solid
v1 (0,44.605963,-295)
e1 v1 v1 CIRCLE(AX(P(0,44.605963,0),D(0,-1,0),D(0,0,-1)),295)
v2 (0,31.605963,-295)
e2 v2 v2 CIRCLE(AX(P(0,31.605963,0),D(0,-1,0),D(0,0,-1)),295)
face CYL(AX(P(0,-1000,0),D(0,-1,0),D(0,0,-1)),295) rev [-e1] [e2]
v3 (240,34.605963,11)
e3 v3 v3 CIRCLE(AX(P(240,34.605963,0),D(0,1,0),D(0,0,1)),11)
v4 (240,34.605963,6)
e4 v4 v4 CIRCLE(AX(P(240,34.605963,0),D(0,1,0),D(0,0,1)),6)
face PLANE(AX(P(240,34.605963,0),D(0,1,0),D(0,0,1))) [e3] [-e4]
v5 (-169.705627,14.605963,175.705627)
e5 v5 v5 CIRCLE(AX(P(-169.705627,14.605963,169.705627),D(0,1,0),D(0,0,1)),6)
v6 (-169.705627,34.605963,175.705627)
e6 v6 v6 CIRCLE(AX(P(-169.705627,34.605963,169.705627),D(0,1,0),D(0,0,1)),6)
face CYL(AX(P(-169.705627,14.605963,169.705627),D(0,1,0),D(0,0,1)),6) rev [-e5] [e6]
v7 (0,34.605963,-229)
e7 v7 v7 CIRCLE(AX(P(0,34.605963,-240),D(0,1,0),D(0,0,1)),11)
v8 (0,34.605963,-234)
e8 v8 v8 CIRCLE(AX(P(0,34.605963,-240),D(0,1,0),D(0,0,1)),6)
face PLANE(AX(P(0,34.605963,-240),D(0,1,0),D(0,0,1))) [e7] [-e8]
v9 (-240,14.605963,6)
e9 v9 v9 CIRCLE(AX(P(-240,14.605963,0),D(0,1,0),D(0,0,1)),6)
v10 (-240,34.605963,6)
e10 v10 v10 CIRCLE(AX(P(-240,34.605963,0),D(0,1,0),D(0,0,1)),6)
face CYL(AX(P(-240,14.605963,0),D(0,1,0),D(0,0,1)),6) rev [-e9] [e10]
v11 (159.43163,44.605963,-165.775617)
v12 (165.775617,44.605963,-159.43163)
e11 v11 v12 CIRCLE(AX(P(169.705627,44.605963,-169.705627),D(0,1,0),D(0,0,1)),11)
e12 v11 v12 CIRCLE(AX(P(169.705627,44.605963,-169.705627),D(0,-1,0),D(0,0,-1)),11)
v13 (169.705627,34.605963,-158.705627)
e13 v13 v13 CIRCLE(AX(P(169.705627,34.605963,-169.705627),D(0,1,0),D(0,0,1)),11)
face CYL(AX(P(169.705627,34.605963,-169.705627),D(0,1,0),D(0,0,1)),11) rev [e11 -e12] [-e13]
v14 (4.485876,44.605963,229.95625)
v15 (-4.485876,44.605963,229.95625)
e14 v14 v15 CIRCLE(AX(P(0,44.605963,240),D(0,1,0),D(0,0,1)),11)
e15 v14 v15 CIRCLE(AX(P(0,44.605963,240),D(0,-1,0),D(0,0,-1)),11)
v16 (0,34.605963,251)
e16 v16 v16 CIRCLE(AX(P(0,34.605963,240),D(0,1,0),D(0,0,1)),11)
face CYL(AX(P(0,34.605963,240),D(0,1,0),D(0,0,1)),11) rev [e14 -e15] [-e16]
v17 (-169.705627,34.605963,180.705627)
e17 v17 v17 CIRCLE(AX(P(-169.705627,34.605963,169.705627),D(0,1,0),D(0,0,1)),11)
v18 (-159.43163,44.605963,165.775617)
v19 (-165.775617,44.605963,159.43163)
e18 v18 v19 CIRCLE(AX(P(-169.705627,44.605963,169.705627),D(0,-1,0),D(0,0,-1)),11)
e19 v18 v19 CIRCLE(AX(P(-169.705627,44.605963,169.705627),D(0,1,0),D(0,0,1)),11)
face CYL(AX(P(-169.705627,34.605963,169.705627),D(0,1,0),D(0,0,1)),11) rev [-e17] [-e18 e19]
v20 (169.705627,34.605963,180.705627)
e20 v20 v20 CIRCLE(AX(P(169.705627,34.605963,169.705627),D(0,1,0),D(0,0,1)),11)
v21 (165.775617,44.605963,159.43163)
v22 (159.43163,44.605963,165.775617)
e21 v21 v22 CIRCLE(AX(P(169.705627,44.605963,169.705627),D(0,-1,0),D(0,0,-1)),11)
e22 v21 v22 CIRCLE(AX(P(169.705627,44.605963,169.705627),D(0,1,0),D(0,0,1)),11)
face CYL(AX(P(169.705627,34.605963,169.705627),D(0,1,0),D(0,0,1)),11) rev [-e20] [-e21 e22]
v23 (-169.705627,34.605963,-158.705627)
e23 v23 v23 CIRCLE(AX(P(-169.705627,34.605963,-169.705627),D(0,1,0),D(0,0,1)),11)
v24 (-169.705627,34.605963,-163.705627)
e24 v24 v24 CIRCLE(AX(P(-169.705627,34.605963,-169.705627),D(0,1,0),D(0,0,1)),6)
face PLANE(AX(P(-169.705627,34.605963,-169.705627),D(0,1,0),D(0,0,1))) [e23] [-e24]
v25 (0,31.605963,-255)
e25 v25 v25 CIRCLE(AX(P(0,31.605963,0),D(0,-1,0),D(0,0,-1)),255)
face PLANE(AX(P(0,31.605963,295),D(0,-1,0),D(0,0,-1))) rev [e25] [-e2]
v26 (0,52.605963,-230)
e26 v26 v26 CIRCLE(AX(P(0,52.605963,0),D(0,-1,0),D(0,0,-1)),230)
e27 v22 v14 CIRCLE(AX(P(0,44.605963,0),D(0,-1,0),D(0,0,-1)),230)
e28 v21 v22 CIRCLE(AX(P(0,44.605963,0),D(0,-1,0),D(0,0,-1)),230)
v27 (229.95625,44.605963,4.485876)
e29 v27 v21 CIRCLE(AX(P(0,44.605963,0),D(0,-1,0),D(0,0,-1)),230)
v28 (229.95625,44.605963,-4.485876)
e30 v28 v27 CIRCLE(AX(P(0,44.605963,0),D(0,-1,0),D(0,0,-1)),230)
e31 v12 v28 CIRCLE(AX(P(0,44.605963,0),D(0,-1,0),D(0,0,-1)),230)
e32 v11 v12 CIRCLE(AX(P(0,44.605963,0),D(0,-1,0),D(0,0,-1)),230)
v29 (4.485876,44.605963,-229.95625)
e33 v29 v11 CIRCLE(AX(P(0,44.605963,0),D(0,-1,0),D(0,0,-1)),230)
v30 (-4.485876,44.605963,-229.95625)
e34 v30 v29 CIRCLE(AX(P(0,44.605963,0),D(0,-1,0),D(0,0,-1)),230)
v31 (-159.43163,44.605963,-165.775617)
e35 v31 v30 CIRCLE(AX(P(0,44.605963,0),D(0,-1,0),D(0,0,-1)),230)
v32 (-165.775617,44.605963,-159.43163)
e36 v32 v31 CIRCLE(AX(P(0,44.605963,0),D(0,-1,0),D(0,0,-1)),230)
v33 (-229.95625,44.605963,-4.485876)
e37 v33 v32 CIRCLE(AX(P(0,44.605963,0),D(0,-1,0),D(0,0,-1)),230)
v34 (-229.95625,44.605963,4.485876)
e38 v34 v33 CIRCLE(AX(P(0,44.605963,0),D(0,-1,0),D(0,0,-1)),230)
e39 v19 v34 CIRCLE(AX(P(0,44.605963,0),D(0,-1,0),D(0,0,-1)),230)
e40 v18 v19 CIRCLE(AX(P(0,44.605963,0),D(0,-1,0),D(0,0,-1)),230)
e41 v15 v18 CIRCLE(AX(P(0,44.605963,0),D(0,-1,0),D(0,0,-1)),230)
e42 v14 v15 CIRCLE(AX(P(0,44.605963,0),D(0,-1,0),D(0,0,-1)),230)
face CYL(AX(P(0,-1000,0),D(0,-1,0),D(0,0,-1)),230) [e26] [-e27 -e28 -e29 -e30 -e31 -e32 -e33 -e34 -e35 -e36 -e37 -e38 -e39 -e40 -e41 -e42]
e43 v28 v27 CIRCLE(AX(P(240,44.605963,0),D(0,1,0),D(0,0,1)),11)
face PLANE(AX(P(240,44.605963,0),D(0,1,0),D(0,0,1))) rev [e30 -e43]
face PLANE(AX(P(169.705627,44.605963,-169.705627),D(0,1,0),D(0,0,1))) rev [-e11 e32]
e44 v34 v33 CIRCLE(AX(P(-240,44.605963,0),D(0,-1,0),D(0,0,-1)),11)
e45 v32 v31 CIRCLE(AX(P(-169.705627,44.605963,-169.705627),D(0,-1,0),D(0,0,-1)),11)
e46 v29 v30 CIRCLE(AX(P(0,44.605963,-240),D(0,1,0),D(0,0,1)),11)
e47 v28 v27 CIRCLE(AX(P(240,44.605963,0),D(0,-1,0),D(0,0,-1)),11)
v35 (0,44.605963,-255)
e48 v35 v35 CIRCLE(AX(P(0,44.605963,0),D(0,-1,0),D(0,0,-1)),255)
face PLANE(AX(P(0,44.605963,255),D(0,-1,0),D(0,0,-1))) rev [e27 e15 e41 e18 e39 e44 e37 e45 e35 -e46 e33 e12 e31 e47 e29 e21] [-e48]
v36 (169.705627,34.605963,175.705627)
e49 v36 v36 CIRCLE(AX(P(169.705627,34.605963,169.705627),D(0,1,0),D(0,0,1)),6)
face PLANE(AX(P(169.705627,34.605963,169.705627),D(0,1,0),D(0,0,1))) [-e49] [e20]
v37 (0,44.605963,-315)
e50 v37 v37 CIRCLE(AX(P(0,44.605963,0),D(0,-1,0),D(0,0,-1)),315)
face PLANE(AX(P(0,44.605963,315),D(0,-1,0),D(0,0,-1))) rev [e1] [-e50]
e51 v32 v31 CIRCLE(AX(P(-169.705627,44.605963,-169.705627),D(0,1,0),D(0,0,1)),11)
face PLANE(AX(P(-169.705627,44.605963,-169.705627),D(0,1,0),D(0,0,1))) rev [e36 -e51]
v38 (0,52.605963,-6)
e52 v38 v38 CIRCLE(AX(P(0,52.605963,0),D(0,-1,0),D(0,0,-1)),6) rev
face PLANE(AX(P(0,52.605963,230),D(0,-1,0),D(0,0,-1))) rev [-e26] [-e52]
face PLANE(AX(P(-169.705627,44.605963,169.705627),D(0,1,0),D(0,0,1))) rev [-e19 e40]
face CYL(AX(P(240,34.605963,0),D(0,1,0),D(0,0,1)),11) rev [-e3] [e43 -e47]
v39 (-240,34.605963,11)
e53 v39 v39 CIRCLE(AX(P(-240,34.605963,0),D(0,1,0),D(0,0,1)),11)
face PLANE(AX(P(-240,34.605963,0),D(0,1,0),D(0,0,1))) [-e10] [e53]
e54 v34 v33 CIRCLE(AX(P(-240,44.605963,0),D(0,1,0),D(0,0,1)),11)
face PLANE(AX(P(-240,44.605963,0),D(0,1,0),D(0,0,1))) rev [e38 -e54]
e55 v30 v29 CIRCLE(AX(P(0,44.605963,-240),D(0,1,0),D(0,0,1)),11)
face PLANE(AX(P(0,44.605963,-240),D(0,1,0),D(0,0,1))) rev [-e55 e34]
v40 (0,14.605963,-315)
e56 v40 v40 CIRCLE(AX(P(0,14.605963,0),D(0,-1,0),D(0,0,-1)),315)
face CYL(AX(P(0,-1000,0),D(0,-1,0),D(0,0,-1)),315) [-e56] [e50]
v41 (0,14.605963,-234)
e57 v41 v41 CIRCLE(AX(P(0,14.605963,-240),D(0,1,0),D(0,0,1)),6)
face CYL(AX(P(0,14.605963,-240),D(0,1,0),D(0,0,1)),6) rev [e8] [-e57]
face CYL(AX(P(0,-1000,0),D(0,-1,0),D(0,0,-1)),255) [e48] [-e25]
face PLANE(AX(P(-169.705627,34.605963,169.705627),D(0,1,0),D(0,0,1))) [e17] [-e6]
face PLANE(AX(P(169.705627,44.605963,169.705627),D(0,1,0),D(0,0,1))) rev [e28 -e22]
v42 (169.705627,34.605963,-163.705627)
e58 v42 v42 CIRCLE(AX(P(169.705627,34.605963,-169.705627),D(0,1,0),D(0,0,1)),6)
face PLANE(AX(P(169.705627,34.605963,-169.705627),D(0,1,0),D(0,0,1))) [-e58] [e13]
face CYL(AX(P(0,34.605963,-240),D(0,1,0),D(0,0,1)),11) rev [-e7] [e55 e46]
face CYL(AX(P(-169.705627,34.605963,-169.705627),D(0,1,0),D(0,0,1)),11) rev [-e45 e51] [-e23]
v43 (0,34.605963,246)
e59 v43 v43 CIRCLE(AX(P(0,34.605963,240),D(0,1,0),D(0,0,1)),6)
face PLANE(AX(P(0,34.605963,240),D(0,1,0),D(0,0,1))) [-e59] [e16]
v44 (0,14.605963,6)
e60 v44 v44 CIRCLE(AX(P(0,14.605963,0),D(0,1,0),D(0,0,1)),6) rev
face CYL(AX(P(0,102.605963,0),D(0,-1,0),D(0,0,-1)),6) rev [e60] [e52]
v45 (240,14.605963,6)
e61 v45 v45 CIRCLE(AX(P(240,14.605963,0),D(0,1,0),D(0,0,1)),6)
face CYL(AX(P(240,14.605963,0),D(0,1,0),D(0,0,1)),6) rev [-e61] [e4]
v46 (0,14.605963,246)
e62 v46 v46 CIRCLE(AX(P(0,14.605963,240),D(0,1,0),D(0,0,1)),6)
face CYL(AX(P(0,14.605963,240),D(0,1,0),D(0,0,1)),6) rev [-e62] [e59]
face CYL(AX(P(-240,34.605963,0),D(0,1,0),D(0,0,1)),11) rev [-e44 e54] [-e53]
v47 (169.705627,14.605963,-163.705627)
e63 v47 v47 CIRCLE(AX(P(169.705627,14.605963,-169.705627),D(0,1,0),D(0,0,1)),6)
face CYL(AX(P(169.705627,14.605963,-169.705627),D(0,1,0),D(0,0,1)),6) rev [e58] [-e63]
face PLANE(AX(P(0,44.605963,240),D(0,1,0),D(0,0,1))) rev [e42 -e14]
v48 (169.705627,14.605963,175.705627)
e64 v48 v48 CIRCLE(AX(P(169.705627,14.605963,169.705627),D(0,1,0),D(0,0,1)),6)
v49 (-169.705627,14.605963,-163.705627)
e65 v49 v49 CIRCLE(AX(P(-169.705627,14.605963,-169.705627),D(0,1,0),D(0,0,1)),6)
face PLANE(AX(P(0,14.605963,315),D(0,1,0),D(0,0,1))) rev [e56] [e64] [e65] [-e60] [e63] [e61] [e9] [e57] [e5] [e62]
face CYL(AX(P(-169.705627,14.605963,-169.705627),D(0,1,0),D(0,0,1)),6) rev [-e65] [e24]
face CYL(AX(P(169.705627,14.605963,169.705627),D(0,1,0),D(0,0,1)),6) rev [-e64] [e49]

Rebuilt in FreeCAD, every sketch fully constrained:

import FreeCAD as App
import Part
import Sketcher
from FreeCAD import Vector
Q = App.Units.Quantity


def add_polygon(sketch, points):
    """Adds a closed chain of lines whose ends are joined by coincident constraints."""
    first, n = sketch.GeometryCount, len(points)
    for a, b in zip(points, points[1:] + points[:1]):
        sketch.addGeometry(Part.LineSegment(App.Vector(*a, 0), App.Vector(*b, 0)), False)
    for i in range(n):
        sketch.addConstraint(Sketcher.Constraint("Coincident", first + i, 2, first + (i + 1) % n, 1))

doc = App.newDocument("Part")
body = doc.addObject("PartDesign::Body", "Body")

sketch1 = body.newObject("Sketcher::SketchObject", "Sketch")
sketch1.AttachmentSupport = (doc.getObject("YZ_Plane"), [""])
sketch1.MapMode = "FlatFace"
add_polygon(sketch1, [(45, 315), (15, 315), (15, 0), (53, 0), (53, 230), (45, 230), (45, 255), (32, 255), (32, 295), (45, 295)])
sketch1.addConstraint([
    Sketcher.Constraint("Horizontal", 0),
    Sketcher.Constraint("Vertical", 1),
    Sketcher.Constraint("Horizontal", 2),
    Sketcher.Constraint("Vertical", 3),
    Sketcher.Constraint("Horizontal", 4),
    Sketcher.Constraint("Vertical", 5),
    Sketcher.Constraint("Horizontal", 6),
    Sketcher.Constraint("Vertical", 7),
    Sketcher.Constraint("Horizontal", 8),
    Sketcher.Constraint("Vertical", 9),
    Sketcher.Constraint("PointOnObject", 1, 2, -1),
    Sketcher.Constraint("Vertical", 5, 2, 8, 2),
    Sketcher.Constraint("DistanceX", 0, 2, 0, 1, Q("30 mm")),
    Sketcher.Constraint("DistanceX", 2, 1, 2, 2, Q("38 mm")),
    Sketcher.Constraint("DistanceX", 6, 2, 6, 1, Q("13 mm")),
    Sketcher.Constraint("DistanceY", 1, 2, 1, 1, Q("315 mm")),
    Sketcher.Constraint("DistanceY", 3, 1, 3, 2, Q("230 mm")),
    Sketcher.Constraint("DistanceY", 5, 1, 5, 2, Q("25 mm")),
    Sketcher.Constraint("DistanceY", 7, 1, 7, 2, Q("40 mm")),
    Sketcher.Constraint("DistanceX", -1, 1, 0, 2, Q("14.605963 mm")),
])
revolution = body.newObject("PartDesign::Revolution", "Revolution")
revolution.Profile = sketch1
revolution.ReferenceAxis = (sketch1, ["H_Axis"])
revolution.Angle = 360

sketch2 = body.newObject("Sketcher::SketchObject", "Sketch001")
sketch2.AttachmentSupport = (doc.getObject("XZ_Plane"), [""])
sketch2.MapMode = "FlatFace"
sketch2.AttachmentOffset = App.Placement(Vector(0, 0, -44.605963), App.Rotation())
sketch2.addGeometry([
    Part.Circle(Vector(0, -240, 0), Vector(0, 0, 1), 11),
    Part.Circle(Vector(170, -170, 0), Vector(0, 0, 1), 11),
    Part.Circle(Vector(240, 0, 0), Vector(0, 0, 1), 11),
    Part.Circle(Vector(170, 170, 0), Vector(0, 0, 1), 11),
    Part.Circle(Vector(0, 240, 0), Vector(0, 0, 1), 11),
    Part.Circle(Vector(-170, 170, 0), Vector(0, 0, 1), 11),
    Part.Circle(Vector(-240, 0, 0), Vector(0, 0, 1), 11),
    Part.Circle(Vector(-170, -170, 0), Vector(0, 0, 1), 11),
], False)
sketch2.addConstraint([
    Sketcher.Constraint("Equal", 0, 1),
    Sketcher.Constraint("Equal", 1, 2),
    Sketcher.Constraint("Equal", 2, 3),
    Sketcher.Constraint("Equal", 3, 4),
    Sketcher.Constraint("Equal", 4, 5),
    Sketcher.Constraint("Equal", 5, 6),
    Sketcher.Constraint("Equal", 6, 7),
    Sketcher.Constraint("Symmetric", 0, 3, 4, 3, -1, 1),
    Sketcher.Constraint("Symmetric", 1, 3, 5, 3, -1, 1),
    Sketcher.Constraint("Symmetric", 2, 3, 6, 3, -1, 1),
    Sketcher.Constraint("Symmetric", 3, 3, 7, 3, -1, 1),
    Sketcher.Constraint("Symmetric", 3, 3, 5, 3, -2),
    Sketcher.Constraint("PointOnObject", 0, 3, -2),
    Sketcher.Constraint("PointOnObject", 2, 3, -1),
    Sketcher.Constraint("Diameter", 0, Q("22 mm")),
    Sketcher.Constraint("DistanceY", 0, 3, -1, 1, Q("240 mm")),
    Sketcher.Constraint("DistanceX", -1, 1, 2, 3, Q("240 mm")),
    Sketcher.Constraint("DistanceX", -1, 1, 1, 3, Q("169.705627 mm")),
    Sketcher.Constraint("DistanceY", 1, 3, -1, 1, Q("169.705627 mm")),
])
pocket1 = body.newObject("PartDesign::Pocket", "Pocket")
pocket1.Profile = sketch2
pocket1.Length = 10
pocket1.Reversed = True

sketch3 = body.newObject("Sketcher::SketchObject", "Sketch002")
sketch3.AttachmentSupport = (doc.getObject("XZ_Plane"), [""])
sketch3.MapMode = "FlatFace"
sketch3.AttachmentOffset = App.Placement(Vector(0, 0, -44.605963), App.Rotation())
sketch3.addGeometry([
    Part.Circle(Vector(0, -240, 0), Vector(0, 0, 1), 6),
    Part.Circle(Vector(170, -170, 0), Vector(0, 0, 1), 6),
    Part.Circle(Vector(240, 0, 0), Vector(0, 0, 1), 6),
    Part.Circle(Vector(170, 170, 0), Vector(0, 0, 1), 6),
    Part.Circle(Vector(0, 240, 0), Vector(0, 0, 1), 6),
    Part.Circle(Vector(-170, 170, 0), Vector(0, 0, 1), 6),
    Part.Circle(Vector(-240, 0, 0), Vector(0, 0, 1), 6),
    Part.Circle(Vector(-170, -170, 0), Vector(0, 0, 1), 6),
], False)
sketch3.addConstraint([
    Sketcher.Constraint("Equal", 0, 1),
    Sketcher.Constraint("Equal", 1, 2),
    Sketcher.Constraint("Equal", 2, 3),
    Sketcher.Constraint("Equal", 3, 4),
    Sketcher.Constraint("Equal", 4, 5),
    Sketcher.Constraint("Equal", 5, 6),
    Sketcher.Constraint("Equal", 6, 7),
    Sketcher.Constraint("Symmetric", 0, 3, 4, 3, -1, 1),
    Sketcher.Constraint("Symmetric", 1, 3, 5, 3, -1, 1),
    Sketcher.Constraint("Symmetric", 2, 3, 6, 3, -1, 1),
    Sketcher.Constraint("Symmetric", 3, 3, 7, 3, -1, 1),
    Sketcher.Constraint("Symmetric", 3, 3, 5, 3, -2),
    Sketcher.Constraint("PointOnObject", 0, 3, -2),
    Sketcher.Constraint("PointOnObject", 2, 3, -1),
    Sketcher.Constraint("Diameter", 0, Q("12 mm")),
    Sketcher.Constraint("DistanceY", 0, 3, -1, 1, Q("240 mm")),
    Sketcher.Constraint("DistanceX", -1, 1, 2, 3, Q("240 mm")),
    Sketcher.Constraint("DistanceX", -1, 1, 1, 3, Q("169.705627 mm")),
    Sketcher.Constraint("DistanceY", 1, 3, -1, 1, Q("169.705627 mm")),
])
pocket2 = body.newObject("PartDesign::Pocket", "Pocket001")
pocket2.Profile = sketch3
pocket2.Type = "ThroughAll"
pocket2.Reversed = True

sketch4 = body.newObject("Sketcher::SketchObject", "Sketch003")
sketch4.AttachmentSupport = (doc.getObject("XZ_Plane"), [""])
sketch4.MapMode = "FlatFace"
sketch4.AttachmentOffset = App.Placement(Vector(0, 0, -14.605963), App.Rotation())
sketch4.addGeometry(Part.Circle(Vector(0, 0, 0), Vector(0, 0, 1), 6), False)
sketch4.addConstraint([
    Sketcher.Constraint("Coincident", 0, 3, -1, 1),
    Sketcher.Constraint("Diameter", 0, Q("12 mm")),
])
pocket3 = body.newObject("PartDesign::Pocket", "Pocket002")
pocket3.Profile = sketch4
pocket3.Type = "ThroughAll"
pocket3.Midplane = True

doc.recompute()
